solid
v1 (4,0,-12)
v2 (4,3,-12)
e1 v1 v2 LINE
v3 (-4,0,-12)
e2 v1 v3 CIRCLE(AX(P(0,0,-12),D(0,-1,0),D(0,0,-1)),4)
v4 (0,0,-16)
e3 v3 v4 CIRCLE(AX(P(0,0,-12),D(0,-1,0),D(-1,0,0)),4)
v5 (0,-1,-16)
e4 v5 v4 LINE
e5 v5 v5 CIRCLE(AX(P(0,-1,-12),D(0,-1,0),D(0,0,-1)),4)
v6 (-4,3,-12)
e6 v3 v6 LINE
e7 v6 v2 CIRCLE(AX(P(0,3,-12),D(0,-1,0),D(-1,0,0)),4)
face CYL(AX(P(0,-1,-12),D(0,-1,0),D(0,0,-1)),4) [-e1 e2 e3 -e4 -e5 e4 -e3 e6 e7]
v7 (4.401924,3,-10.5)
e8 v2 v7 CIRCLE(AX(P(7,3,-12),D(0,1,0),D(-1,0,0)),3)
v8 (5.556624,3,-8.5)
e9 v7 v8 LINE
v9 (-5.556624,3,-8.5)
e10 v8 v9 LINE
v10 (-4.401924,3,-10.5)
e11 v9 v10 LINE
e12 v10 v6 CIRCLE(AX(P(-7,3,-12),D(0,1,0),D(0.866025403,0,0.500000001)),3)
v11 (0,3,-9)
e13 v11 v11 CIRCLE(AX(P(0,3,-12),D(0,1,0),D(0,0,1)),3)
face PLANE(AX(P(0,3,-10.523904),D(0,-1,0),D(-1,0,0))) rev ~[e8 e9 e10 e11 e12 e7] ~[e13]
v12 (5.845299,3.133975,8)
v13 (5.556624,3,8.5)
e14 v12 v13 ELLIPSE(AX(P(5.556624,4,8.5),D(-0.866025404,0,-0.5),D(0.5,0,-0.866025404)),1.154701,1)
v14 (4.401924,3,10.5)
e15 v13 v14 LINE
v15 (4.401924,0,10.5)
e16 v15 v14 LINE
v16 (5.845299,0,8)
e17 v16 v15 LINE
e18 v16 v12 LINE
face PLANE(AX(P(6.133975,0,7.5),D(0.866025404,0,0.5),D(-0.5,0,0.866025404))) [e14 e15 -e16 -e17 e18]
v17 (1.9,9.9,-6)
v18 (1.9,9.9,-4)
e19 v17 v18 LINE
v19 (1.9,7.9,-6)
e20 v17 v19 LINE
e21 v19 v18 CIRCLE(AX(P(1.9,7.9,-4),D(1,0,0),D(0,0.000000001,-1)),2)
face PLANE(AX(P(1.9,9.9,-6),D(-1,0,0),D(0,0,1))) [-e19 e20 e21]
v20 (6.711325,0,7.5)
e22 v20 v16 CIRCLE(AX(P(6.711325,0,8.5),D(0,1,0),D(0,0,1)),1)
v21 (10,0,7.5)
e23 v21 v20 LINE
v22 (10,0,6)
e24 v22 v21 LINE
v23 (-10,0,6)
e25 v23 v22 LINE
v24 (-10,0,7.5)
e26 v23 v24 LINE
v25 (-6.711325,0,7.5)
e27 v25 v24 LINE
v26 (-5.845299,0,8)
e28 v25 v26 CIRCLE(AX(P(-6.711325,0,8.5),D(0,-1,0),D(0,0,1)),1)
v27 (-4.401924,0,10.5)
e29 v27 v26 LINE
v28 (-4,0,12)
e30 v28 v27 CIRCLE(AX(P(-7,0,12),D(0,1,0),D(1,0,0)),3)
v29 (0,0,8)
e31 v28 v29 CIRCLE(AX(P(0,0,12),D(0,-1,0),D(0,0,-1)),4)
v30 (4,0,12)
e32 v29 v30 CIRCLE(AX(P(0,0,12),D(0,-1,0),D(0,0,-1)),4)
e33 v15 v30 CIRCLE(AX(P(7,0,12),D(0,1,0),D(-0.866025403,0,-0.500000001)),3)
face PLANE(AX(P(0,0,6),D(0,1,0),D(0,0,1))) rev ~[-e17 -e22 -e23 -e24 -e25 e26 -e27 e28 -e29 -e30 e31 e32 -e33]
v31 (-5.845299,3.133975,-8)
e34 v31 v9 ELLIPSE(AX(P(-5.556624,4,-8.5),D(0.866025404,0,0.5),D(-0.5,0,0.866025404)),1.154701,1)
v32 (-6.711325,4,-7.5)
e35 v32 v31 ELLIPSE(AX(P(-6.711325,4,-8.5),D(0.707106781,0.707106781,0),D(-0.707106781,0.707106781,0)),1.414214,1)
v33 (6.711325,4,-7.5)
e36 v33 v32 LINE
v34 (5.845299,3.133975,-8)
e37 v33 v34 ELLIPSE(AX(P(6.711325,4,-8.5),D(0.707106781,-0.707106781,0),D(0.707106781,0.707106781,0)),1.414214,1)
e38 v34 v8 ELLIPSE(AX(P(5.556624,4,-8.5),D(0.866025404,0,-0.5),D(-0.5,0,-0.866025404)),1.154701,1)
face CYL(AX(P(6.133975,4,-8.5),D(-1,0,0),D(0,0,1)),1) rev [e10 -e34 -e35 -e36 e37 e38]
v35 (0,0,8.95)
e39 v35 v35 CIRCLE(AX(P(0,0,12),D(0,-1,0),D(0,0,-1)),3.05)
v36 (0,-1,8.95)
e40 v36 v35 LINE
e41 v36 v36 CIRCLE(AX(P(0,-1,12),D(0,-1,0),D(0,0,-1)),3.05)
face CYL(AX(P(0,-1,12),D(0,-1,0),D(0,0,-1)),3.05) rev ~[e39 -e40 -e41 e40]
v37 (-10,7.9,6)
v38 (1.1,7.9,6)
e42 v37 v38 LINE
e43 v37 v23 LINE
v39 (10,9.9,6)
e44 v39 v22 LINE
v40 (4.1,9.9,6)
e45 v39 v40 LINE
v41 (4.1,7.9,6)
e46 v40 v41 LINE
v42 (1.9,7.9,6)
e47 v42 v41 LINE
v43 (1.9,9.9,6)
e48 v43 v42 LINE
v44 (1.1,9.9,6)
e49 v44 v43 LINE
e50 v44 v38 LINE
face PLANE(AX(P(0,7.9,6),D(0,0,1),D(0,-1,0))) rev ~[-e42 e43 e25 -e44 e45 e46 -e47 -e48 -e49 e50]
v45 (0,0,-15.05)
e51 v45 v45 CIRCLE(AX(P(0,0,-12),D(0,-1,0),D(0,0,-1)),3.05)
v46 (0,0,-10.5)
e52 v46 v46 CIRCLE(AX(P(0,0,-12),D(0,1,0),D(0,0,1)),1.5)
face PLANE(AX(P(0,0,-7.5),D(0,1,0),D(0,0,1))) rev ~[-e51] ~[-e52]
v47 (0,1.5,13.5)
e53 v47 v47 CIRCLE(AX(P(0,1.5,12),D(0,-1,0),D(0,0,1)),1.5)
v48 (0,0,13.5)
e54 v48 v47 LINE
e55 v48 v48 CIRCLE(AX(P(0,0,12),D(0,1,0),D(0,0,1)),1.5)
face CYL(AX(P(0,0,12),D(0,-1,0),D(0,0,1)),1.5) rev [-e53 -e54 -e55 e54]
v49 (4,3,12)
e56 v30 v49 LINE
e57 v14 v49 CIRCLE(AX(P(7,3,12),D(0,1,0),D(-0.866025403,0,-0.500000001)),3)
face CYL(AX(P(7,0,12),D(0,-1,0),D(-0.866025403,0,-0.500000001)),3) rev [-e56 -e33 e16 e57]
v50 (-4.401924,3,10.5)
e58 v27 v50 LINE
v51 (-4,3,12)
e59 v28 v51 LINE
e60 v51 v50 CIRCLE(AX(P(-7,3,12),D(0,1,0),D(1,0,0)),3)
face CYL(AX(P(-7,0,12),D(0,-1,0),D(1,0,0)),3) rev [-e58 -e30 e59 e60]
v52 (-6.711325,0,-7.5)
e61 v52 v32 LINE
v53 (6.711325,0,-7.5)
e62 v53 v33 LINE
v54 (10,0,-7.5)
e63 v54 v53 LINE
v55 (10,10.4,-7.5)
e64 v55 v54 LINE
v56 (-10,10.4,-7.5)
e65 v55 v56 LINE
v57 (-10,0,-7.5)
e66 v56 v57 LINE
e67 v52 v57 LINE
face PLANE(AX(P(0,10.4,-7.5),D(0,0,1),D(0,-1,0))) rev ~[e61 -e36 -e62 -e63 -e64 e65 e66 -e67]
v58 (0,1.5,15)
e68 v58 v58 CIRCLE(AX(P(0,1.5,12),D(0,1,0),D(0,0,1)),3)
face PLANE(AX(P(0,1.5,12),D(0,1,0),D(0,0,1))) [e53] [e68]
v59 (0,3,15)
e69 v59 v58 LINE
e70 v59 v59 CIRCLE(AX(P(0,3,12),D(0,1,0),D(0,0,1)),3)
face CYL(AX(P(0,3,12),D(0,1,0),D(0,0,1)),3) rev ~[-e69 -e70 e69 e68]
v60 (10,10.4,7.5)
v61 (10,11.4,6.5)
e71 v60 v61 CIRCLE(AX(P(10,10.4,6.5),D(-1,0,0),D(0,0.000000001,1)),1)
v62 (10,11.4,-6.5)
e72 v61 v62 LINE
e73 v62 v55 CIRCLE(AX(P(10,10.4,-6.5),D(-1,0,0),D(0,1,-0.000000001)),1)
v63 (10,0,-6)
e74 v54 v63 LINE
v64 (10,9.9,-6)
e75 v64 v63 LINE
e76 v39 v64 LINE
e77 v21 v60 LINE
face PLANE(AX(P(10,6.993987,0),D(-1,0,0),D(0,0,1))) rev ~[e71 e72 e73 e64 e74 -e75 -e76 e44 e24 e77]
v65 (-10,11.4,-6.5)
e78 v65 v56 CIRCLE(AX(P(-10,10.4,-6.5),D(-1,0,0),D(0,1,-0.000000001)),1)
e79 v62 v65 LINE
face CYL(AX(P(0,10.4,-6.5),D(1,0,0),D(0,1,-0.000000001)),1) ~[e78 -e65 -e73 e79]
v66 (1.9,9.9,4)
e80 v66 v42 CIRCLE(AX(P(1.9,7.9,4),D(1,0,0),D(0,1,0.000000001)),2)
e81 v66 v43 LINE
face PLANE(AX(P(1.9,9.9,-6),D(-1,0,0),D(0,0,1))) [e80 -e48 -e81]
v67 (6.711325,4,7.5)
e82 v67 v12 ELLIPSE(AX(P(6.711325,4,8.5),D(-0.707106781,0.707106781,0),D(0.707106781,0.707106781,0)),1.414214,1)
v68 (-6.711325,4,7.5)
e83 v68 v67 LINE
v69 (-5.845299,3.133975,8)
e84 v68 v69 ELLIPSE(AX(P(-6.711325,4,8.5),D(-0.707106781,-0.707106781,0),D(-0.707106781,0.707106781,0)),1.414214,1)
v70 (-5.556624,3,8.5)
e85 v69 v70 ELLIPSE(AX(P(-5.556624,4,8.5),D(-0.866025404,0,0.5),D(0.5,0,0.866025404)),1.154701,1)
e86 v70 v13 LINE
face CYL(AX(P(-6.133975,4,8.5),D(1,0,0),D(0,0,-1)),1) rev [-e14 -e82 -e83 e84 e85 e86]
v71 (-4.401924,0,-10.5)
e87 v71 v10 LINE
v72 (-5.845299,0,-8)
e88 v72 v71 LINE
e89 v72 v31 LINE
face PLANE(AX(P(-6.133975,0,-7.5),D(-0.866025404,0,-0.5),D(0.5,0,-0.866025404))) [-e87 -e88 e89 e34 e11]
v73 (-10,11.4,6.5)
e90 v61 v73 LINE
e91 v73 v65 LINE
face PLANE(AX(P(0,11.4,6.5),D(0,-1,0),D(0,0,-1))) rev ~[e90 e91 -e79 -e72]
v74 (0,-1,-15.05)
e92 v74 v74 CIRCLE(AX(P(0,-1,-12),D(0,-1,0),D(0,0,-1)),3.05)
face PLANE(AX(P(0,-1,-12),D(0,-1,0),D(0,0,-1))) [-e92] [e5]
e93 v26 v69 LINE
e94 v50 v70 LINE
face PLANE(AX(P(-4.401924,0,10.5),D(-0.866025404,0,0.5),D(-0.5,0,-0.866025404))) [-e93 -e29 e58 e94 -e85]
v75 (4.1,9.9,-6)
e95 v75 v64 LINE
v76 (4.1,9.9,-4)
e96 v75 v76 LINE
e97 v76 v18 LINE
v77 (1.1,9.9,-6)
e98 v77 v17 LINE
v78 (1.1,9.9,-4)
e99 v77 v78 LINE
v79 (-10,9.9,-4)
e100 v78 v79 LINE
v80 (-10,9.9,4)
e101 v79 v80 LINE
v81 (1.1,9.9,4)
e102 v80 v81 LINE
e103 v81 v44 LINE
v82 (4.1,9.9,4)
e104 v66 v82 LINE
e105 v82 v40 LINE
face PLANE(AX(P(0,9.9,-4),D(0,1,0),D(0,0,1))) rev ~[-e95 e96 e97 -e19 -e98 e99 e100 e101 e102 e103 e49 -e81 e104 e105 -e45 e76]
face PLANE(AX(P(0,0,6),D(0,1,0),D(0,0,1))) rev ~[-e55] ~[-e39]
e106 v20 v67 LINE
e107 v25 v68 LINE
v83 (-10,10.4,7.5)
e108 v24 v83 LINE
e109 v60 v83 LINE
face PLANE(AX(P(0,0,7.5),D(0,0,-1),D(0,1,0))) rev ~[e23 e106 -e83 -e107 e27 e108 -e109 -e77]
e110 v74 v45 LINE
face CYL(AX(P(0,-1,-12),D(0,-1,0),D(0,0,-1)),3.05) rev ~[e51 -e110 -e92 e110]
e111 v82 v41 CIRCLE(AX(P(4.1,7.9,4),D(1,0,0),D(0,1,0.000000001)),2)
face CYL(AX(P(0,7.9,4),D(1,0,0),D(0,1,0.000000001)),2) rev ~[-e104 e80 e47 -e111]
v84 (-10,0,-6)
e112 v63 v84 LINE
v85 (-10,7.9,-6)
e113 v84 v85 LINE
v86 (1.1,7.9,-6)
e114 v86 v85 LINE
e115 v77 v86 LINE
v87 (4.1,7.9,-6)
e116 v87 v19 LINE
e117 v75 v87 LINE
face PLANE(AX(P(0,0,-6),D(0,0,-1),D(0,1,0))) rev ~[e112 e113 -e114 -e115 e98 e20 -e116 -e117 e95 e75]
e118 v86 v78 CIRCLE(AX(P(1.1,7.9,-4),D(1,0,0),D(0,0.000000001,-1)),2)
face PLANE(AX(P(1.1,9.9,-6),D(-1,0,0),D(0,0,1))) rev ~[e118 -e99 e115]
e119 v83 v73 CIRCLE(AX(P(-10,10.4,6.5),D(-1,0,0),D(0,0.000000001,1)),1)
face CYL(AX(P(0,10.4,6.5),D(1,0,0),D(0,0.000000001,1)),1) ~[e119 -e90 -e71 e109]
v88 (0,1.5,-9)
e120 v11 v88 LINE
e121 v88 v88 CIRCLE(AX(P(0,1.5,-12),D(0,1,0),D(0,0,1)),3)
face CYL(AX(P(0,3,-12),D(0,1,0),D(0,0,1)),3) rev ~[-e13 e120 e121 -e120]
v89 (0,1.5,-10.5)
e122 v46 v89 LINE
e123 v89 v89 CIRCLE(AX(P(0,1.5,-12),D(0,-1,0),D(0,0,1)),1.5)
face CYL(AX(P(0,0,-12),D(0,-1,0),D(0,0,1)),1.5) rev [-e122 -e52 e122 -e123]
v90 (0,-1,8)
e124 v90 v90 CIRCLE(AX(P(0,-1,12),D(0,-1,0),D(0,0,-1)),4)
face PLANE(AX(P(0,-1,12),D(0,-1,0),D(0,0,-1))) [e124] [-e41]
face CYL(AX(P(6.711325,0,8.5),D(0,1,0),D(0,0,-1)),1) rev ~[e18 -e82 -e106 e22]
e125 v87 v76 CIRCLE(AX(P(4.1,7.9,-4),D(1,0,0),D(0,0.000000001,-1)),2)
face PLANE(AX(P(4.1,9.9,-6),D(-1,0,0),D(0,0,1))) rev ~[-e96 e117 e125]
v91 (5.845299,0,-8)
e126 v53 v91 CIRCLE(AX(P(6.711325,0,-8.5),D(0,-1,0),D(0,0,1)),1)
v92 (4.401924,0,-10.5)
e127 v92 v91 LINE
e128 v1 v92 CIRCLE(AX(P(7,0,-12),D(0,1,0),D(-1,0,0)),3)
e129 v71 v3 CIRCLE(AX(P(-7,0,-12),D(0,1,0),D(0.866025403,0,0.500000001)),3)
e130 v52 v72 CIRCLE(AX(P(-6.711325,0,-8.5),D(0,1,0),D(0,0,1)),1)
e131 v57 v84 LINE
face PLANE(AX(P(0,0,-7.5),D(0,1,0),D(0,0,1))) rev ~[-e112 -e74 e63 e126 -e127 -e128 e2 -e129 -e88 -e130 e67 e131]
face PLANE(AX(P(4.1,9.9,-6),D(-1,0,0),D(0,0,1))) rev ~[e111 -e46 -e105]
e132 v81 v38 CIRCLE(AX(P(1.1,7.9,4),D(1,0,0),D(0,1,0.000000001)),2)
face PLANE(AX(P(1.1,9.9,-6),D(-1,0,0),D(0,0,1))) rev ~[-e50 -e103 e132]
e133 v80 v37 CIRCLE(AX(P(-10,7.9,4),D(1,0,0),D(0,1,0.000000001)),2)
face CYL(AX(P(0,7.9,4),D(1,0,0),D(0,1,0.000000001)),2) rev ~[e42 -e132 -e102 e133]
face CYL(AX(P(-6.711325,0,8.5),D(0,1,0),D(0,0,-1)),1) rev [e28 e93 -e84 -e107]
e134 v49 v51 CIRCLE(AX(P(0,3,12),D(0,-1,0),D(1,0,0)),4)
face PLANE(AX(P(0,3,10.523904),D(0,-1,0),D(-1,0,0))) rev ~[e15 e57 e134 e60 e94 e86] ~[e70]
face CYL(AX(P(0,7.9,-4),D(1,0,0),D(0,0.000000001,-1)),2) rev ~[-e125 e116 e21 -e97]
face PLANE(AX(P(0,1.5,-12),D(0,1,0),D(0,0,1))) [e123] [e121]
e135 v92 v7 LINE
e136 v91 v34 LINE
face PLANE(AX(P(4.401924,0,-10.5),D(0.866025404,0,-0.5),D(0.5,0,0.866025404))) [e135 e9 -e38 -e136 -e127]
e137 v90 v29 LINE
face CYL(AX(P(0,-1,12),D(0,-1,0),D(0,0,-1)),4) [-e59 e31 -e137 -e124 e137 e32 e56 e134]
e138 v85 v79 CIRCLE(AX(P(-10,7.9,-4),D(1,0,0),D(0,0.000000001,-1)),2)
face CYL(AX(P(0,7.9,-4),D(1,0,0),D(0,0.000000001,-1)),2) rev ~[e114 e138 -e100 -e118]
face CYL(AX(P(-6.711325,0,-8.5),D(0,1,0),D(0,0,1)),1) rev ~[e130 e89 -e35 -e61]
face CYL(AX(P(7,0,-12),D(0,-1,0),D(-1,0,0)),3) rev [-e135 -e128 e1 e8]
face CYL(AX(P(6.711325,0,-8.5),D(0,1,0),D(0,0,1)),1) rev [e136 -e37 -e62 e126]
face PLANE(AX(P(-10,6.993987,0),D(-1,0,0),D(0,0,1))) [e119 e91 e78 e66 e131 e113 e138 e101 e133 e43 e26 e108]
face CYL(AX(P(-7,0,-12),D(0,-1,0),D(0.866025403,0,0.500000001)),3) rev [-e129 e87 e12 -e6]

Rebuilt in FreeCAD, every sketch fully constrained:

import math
import FreeCAD as App
import Part
import Sketcher

V = App.Vector
Q = App.Units.Quantity


def edges_at(feature, points):
    """Names of the edges that pass closest to the given points."""
    edges = feature.Shape.Edges
    near = lambda p: min(range(len(edges)), key=lambda i: edges[i].distToShape(Part.Vertex(*p))[0])
    return sorted({f"Edge{near(p) + 1}" for p in points})


def add_polygon(sketch, points):
    """Adds a closed chain of lines whose ends are joined by coincident constraints."""
    first, n = sketch.GeometryCount, len(points)
    for a, b in zip(points, points[1:] + points[:1]):
        sketch.addGeometry(Part.LineSegment(App.Vector(*a, 0), App.Vector(*b, 0)), False)
    for i in range(n):
        sketch.addConstraint(Sketcher.Constraint("Coincident", first + i, 2, first + (i + 1) % n, 1))

doc = App.newDocument("Part")
body = doc.addObject("PartDesign::Body", "Body")

# Sketch on YZ plane
sketch1 = doc.addObject("Sketcher::SketchObject", "Sketch")
body.addObject(sketch1)
sketch1.AttachmentSupport = (doc.YZ_Plane, [""])
sketch1.MapMode = "FlatFace"
sketch1.addGeometry([
    Part.LineSegment(V(0, 7.5, 0), V(0, 6, 0)),  # 0
    Part.LineSegment(V(0, 6, 0), V(7.9, 6, 0)),  # 1
    Part.ArcOfCircle(Part.Circle(V(7.9, 4, 0), V(0, 0, 1), 2), math.radians(0), math.radians(90)),  # 2
    Part.LineSegment(V(9.9, 4, 0), V(9.9, -4, 0)),  # 3
    Part.ArcOfCircle(Part.Circle(V(7.9, -4, 0), V(0, 0, 1), 2), math.radians(-90), math.radians(0)),  # 4
    Part.LineSegment(V(7.9, -6, 0), V(0, -6, 0)),  # 5
    Part.LineSegment(V(0, -6, 0), V(0, -7.5, 0)),  # 6
    Part.LineSegment(V(0, -7.5, 0), V(10.4, -7.5, 0)),  # 7
    Part.ArcOfCircle(Part.Circle(V(10.4, -6.5, 0), V(0, 0, 1), 1), math.radians(-90), math.radians(0)),  # 8
    Part.LineSegment(V(11.4, -6.5, 0), V(11.4, 6.5, 0)),  # 9
    Part.ArcOfCircle(Part.Circle(V(10.4, 6.5, 0), V(0, 0, 1), 1), math.radians(0), math.radians(90)),  # 10
    Part.LineSegment(V(10.4, 7.5, 0), V(0, 7.5, 0)),  # 11
], False)
sketch1.addConstraint([
    Sketcher.Constraint("Coincident", 0, 2, 1, 1),
    Sketcher.Constraint("Tangent", 1, 2, 2, 2),
    Sketcher.Constraint("Tangent", 2, 1, 3, 1),
    Sketcher.Constraint("Tangent", 3, 2, 4, 2),
    Sketcher.Constraint("Tangent", 4, 1, 5, 1),
    Sketcher.Constraint("Coincident", 5, 2, 6, 1),
    Sketcher.Constraint("Coincident", 6, 2, 7, 1),
    Sketcher.Constraint("Tangent", 7, 2, 8, 1),
    Sketcher.Constraint("Tangent", 8, 2, 9, 1),
    Sketcher.Constraint("Tangent", 9, 2, 10, 1),
    Sketcher.Constraint("Tangent", 10, 2, 11, 1),
    Sketcher.Constraint("Coincident", 11, 2, 0, 1),
    Sketcher.Constraint("Vertical", 0),
    Sketcher.Constraint("Horizontal", 1),
    Sketcher.Constraint("Vertical", 3),
    Sketcher.Constraint("Horizontal", 5),
    Sketcher.Constraint("Vertical", 6),
    Sketcher.Constraint("Horizontal", 7),
    Sketcher.Constraint("Vertical", 9),
    Sketcher.Constraint("Horizontal", 11),
    Sketcher.Constraint("Equal", 2, 4),
    Sketcher.Constraint("Equal", 8, 10),
    Sketcher.Constraint("Symmetric", 0, 2, 5, 2, -1, 1),
    Sketcher.Constraint("Symmetric", 6, 2, 11, 2, -1),
    Sketcher.Constraint("Radius", 2, Q("2 mm")),
    Sketcher.Constraint("Radius", 8, Q("1 mm")),
    Sketcher.Constraint("DistanceY", 3, 2, 3, 1, Q("8 mm")),
    Sketcher.Constraint("DistanceY", 9, 1, 9, 2, Q("13 mm")),
    Sketcher.Constraint("DistanceX", 1, 1, 1, 2, Q("7.9 mm")),
    Sketcher.Constraint("DistanceX", 7, 1, 7, 2, Q("10.4 mm")),
])
pad1 = doc.addObject("PartDesign::Pad", "Pad")
body.addObject(pad1)
pad1.Profile = sketch1
pad1.Length = 20
pad1.Midplane = True

# Sketch on XZ plane
sketch2 = doc.addObject("Sketcher::SketchObject", "Sketch001")
body.addObject(sketch2)
sketch2.AttachmentSupport = (doc.XZ_Plane, [""])
sketch2.MapMode = "FlatFace"
sketch2.AttachmentOffset = App.Placement(V(0, 0, -9.9), App.Rotation())
add_polygon(sketch2, [(4.1, -6), (11.868835, -6), (11.868835, 6), (4.1, 6)])  # lines 0-3
add_polygon(sketch2, [(1.1, 6), (1.1, -6), (1.9, -6), (1.9, 6)])  # lines 4-7
sketch2.addConstraint([
    Sketcher.Constraint("Horizontal", 0),
    Sketcher.Constraint("Vertical", 1),
    Sketcher.Constraint("Horizontal", 2),
    Sketcher.Constraint("Vertical", 3),
    Sketcher.Constraint("Vertical", 4),
    Sketcher.Constraint("Horizontal", 5),
    Sketcher.Constraint("Vertical", 6),
    Sketcher.Constraint("Horizontal", 7),
    Sketcher.Constraint("Horizontal", 3, 2, 4, 2),
    Sketcher.Constraint("Horizontal", 2, 2, 6, 2),
    Sketcher.Constraint("DistanceY", 1, 1, 1, 2, Q("12 mm")),
    Sketcher.Constraint("DistanceX", 5, 1, 5, 2, Q("0.8 mm")),
    Sketcher.Constraint("DistanceY", 0, 2, -1, 1, Q("6 mm")),
    Sketcher.Constraint("DistanceX", 4, 2, 3, 2, Q("3 mm")),
    Sketcher.Constraint("DistanceX", -1, 1, 2, 2, Q("4.1 mm")),
    Sketcher.Constraint("DistanceX", 0, 1, 0, 2, Q("7.768835 mm")),
])
pocket1 = doc.addObject("PartDesign::Pocket", "Pocket")
body.addObject(pocket1)
pocket1.Profile = sketch2
pocket1.Length = 10
pocket1.Reversed = True

# Sketch on XZ plane
sketch3 = doc.addObject("Sketcher::SketchObject", "Sketch002")
body.addObject(sketch3)
sketch3.AttachmentSupport = (doc.XZ_Plane, [""])
sketch3.MapMode = "FlatFace"
sketch3.addGeometry([
    Part.LineSegment(V(-4.401924, -10.5, 0), V(-6.133975, -7.5, 0)),  # 0
    Part.LineSegment(V(-6.133975, -7.5, 0), V(6.133975, -7.5, 0)),  # 1
    Part.LineSegment(V(6.133975, -7.5, 0), V(4.401924, -10.5, 0)),  # 2
    Part.ArcOfCircle(Part.Circle(V(7, -12, 0), V(0, 0, 1), 3), math.radians(150), math.radians(180)),  # 3
    Part.ArcOfCircle(Part.Circle(V(0, -12, 0), V(0, 0, 1), 4), math.radians(180), math.radians(360)),  # 4
    Part.ArcOfCircle(Part.Circle(V(-7, -12, 0), V(0, 0, 1), 3), math.radians(0), math.radians(30)),  # 5
    Part.Circle(V(0, -12, 0), V(0, 0, 1), 1.5),  # 6
    Part.LineSegment(V(4.401924, 10.5, 0), V(6.133975, 7.5, 0)),  # 7
    Part.LineSegment(V(6.133975, 7.5, 0), V(-6.133975, 7.5, 0)),  # 8
    Part.LineSegment(V(-6.133975, 7.5, 0), V(-4.401924, 10.5, 0)),  # 9
    Part.ArcOfCircle(Part.Circle(V(-7, 12, 0), V(0, 0, 1), 3), math.radians(-30), math.radians(0)),  # 10
    Part.ArcOfCircle(Part.Circle(V(0, 12, 0), V(0, 0, 1), 4), math.radians(0), math.radians(180)),  # 11
    Part.ArcOfCircle(Part.Circle(V(7, 12, 0), V(0, 0, 1), 3), math.radians(180), math.radians(210)),  # 12
    Part.Circle(V(0, 12, 0), V(0, 0, 1), 1.5),  # 13
], False)
sketch3.addConstraint([
    Sketcher.Constraint("Coincident", 0, 2, 1, 1),
    Sketcher.Constraint("Coincident", 1, 2, 2, 1),
    Sketcher.Constraint("Tangent", 2, 2, 3, 1),
    Sketcher.Constraint("Tangent", 3, 2, 4, 2),
    Sketcher.Constraint("Tangent", 4, 1, 5, 1),
    Sketcher.Constraint("Tangent", 5, 2, 0, 1),
    Sketcher.Constraint("Coincident", 7, 2, 8, 1),
    Sketcher.Constraint("Coincident", 8, 2, 9, 1),
    Sketcher.Constraint("Tangent", 9, 2, 10, 1),
    Sketcher.Constraint("Tangent", 10, 2, 11, 2),
    Sketcher.Constraint("Tangent", 11, 1, 12, 1),
    Sketcher.Constraint("Tangent", 12, 2, 7, 1),
    Sketcher.Constraint("Horizontal", 1),
    Sketcher.Constraint("Horizontal", 8),
    Sketcher.Constraint("Coincident", 6, 3, 4, 3),
    Sketcher.Constraint("Coincident", 13, 3, 11, 3),
    Sketcher.Constraint("Equal", 3, 5),
    Sketcher.Constraint("Equal", 5, 10),
    Sketcher.Constraint("Equal", 4, 11),
    Sketcher.Constraint("Equal", 10, 12),
    Sketcher.Constraint("Equal", 6, 13),
    Sketcher.Constraint("Symmetric", 3, 3, 10, 3, -1, 1),
    Sketcher.Constraint("Symmetric", 0, 2, 7, 2, -1, 1),
    Sketcher.Constraint("Symmetric", 3, 3, 5, 3, -2),
    Sketcher.Constraint("Symmetric", 9, 2, 12, 2, -2),
    Sketcher.Constraint("Parallel", 2, 9),
    Sketcher.Constraint("Horizontal", 3, 3, 4, 3),
    Sketcher.Constraint("Horizontal", 10, 3, 11, 3),
    Sketcher.Constraint("Diameter", 6, Q("3 mm")),
    Sketcher.Constraint("Radius", 3, Q("3 mm")),
    Sketcher.Constraint("Radius", 4, Q("4 mm")),
    Sketcher.Constraint("Angle", 0, Q("120 deg")),
    Sketcher.Constraint("DistanceY", 3, 3, -1, 1, Q("12 mm")),
    Sketcher.Constraint("DistanceY", 2, 2, 1, 2, Q("3 mm")),
])
pad2 = doc.addObject("PartDesign::Pad", "Pad001")
body.addObject(pad2)
pad2.Profile = sketch3
pad2.Length = 3
pad2.Reversed = True
doc.recompute()

fillet = doc.addObject("PartDesign::Fillet", "Fillet")
body.addObject(fillet)
fillet.Base = (pad2, edges_at(pad2, [
    (0, 3, 7.5),
    (6.134, 1.5, 7.5),
    (-6.134, 1.5, 7.5),
    (0, 3, -7.5),
    (-6.134, 1.5, -7.5),
    (6.134, 1.5, -7.5),
]))
fillet.Radius = 1

# Sketch on XZ plane
sketch4 = doc.addObject("Sketcher::SketchObject", "Sketch003")
body.addObject(sketch4)
sketch4.AttachmentSupport = (doc.XZ_Plane, [""])
sketch4.MapMode = "FlatFace"
sketch4.AttachmentOffset = App.Placement(V(0, 0, -3), App.Rotation())
sketch4.addGeometry([
    Part.Circle(V(0, 12, 0), V(0, 0, 1), 3),
    Part.Circle(V(0, -12, 0), V(0, 0, 1), 3),
], False)
sketch4.addConstraint([
    Sketcher.Constraint("Equal", 0, 1),
    Sketcher.Constraint("Symmetric", 0, 3, 1, 3, -1, 1),
    Sketcher.Constraint("PointOnObject", 0, 3, -2),
    Sketcher.Constraint("Diameter", 0, Q("6 mm")),
    Sketcher.Constraint("DistanceY", -1, 1, 0, 3, Q("12 mm")),
])
pocket2 = doc.addObject("PartDesign::Pocket", "Pocket001")
body.addObject(pocket2)
pocket2.Profile = sketch4
pocket2.Length = 1.5
pocket2.Reversed = True

# Sketch on XZ plane
sketch5 = doc.addObject("Sketcher::SketchObject", "Sketch004")
body.addObject(sketch5)
sketch5.AttachmentSupport = (doc.XZ_Plane, [""])
sketch5.MapMode = "FlatFace"
sketch5.AttachmentOffset = App.Placement(V(0, 0, 1), App.Rotation())
sketch5.addGeometry([
    Part.Circle(V(0, 12, 0), V(0, 0, 1), 4),
    Part.Circle(V(0, 12, 0), V(0, 0, 1), 3.05),
    Part.Circle(V(0, -12, 0), V(0, 0, 1), 4),
    Part.Circle(V(0, -12, 0), V(0, 0, 1), 3.05),
], False)
sketch5.addConstraint([
    Sketcher.Constraint("Coincident", 1, 3, 0, 3),
    Sketcher.Constraint("Coincident", 3, 3, 2, 3),
    Sketcher.Constraint("Equal", 0, 2),
    Sketcher.Constraint("Equal", 1, 3),
    Sketcher.Constraint("Symmetric", 0, 3, 2, 3, -1, 1),
    Sketcher.Constraint("PointOnObject", 0, 3, -2),
    Sketcher.Constraint("Diameter", 0, Q("8 mm")),
    Sketcher.Constraint("Diameter", 1, Q("6.1 mm")),
    Sketcher.Constraint("DistanceY", -1, 1, 0, 3, Q("12 mm")),
])
pad3 = doc.addObject("PartDesign::Pad", "Pad002")
body.addObject(pad3)
pad3.Profile = sketch5
pad3.Length = 1
pad3.Reversed = True

doc.recompute()
